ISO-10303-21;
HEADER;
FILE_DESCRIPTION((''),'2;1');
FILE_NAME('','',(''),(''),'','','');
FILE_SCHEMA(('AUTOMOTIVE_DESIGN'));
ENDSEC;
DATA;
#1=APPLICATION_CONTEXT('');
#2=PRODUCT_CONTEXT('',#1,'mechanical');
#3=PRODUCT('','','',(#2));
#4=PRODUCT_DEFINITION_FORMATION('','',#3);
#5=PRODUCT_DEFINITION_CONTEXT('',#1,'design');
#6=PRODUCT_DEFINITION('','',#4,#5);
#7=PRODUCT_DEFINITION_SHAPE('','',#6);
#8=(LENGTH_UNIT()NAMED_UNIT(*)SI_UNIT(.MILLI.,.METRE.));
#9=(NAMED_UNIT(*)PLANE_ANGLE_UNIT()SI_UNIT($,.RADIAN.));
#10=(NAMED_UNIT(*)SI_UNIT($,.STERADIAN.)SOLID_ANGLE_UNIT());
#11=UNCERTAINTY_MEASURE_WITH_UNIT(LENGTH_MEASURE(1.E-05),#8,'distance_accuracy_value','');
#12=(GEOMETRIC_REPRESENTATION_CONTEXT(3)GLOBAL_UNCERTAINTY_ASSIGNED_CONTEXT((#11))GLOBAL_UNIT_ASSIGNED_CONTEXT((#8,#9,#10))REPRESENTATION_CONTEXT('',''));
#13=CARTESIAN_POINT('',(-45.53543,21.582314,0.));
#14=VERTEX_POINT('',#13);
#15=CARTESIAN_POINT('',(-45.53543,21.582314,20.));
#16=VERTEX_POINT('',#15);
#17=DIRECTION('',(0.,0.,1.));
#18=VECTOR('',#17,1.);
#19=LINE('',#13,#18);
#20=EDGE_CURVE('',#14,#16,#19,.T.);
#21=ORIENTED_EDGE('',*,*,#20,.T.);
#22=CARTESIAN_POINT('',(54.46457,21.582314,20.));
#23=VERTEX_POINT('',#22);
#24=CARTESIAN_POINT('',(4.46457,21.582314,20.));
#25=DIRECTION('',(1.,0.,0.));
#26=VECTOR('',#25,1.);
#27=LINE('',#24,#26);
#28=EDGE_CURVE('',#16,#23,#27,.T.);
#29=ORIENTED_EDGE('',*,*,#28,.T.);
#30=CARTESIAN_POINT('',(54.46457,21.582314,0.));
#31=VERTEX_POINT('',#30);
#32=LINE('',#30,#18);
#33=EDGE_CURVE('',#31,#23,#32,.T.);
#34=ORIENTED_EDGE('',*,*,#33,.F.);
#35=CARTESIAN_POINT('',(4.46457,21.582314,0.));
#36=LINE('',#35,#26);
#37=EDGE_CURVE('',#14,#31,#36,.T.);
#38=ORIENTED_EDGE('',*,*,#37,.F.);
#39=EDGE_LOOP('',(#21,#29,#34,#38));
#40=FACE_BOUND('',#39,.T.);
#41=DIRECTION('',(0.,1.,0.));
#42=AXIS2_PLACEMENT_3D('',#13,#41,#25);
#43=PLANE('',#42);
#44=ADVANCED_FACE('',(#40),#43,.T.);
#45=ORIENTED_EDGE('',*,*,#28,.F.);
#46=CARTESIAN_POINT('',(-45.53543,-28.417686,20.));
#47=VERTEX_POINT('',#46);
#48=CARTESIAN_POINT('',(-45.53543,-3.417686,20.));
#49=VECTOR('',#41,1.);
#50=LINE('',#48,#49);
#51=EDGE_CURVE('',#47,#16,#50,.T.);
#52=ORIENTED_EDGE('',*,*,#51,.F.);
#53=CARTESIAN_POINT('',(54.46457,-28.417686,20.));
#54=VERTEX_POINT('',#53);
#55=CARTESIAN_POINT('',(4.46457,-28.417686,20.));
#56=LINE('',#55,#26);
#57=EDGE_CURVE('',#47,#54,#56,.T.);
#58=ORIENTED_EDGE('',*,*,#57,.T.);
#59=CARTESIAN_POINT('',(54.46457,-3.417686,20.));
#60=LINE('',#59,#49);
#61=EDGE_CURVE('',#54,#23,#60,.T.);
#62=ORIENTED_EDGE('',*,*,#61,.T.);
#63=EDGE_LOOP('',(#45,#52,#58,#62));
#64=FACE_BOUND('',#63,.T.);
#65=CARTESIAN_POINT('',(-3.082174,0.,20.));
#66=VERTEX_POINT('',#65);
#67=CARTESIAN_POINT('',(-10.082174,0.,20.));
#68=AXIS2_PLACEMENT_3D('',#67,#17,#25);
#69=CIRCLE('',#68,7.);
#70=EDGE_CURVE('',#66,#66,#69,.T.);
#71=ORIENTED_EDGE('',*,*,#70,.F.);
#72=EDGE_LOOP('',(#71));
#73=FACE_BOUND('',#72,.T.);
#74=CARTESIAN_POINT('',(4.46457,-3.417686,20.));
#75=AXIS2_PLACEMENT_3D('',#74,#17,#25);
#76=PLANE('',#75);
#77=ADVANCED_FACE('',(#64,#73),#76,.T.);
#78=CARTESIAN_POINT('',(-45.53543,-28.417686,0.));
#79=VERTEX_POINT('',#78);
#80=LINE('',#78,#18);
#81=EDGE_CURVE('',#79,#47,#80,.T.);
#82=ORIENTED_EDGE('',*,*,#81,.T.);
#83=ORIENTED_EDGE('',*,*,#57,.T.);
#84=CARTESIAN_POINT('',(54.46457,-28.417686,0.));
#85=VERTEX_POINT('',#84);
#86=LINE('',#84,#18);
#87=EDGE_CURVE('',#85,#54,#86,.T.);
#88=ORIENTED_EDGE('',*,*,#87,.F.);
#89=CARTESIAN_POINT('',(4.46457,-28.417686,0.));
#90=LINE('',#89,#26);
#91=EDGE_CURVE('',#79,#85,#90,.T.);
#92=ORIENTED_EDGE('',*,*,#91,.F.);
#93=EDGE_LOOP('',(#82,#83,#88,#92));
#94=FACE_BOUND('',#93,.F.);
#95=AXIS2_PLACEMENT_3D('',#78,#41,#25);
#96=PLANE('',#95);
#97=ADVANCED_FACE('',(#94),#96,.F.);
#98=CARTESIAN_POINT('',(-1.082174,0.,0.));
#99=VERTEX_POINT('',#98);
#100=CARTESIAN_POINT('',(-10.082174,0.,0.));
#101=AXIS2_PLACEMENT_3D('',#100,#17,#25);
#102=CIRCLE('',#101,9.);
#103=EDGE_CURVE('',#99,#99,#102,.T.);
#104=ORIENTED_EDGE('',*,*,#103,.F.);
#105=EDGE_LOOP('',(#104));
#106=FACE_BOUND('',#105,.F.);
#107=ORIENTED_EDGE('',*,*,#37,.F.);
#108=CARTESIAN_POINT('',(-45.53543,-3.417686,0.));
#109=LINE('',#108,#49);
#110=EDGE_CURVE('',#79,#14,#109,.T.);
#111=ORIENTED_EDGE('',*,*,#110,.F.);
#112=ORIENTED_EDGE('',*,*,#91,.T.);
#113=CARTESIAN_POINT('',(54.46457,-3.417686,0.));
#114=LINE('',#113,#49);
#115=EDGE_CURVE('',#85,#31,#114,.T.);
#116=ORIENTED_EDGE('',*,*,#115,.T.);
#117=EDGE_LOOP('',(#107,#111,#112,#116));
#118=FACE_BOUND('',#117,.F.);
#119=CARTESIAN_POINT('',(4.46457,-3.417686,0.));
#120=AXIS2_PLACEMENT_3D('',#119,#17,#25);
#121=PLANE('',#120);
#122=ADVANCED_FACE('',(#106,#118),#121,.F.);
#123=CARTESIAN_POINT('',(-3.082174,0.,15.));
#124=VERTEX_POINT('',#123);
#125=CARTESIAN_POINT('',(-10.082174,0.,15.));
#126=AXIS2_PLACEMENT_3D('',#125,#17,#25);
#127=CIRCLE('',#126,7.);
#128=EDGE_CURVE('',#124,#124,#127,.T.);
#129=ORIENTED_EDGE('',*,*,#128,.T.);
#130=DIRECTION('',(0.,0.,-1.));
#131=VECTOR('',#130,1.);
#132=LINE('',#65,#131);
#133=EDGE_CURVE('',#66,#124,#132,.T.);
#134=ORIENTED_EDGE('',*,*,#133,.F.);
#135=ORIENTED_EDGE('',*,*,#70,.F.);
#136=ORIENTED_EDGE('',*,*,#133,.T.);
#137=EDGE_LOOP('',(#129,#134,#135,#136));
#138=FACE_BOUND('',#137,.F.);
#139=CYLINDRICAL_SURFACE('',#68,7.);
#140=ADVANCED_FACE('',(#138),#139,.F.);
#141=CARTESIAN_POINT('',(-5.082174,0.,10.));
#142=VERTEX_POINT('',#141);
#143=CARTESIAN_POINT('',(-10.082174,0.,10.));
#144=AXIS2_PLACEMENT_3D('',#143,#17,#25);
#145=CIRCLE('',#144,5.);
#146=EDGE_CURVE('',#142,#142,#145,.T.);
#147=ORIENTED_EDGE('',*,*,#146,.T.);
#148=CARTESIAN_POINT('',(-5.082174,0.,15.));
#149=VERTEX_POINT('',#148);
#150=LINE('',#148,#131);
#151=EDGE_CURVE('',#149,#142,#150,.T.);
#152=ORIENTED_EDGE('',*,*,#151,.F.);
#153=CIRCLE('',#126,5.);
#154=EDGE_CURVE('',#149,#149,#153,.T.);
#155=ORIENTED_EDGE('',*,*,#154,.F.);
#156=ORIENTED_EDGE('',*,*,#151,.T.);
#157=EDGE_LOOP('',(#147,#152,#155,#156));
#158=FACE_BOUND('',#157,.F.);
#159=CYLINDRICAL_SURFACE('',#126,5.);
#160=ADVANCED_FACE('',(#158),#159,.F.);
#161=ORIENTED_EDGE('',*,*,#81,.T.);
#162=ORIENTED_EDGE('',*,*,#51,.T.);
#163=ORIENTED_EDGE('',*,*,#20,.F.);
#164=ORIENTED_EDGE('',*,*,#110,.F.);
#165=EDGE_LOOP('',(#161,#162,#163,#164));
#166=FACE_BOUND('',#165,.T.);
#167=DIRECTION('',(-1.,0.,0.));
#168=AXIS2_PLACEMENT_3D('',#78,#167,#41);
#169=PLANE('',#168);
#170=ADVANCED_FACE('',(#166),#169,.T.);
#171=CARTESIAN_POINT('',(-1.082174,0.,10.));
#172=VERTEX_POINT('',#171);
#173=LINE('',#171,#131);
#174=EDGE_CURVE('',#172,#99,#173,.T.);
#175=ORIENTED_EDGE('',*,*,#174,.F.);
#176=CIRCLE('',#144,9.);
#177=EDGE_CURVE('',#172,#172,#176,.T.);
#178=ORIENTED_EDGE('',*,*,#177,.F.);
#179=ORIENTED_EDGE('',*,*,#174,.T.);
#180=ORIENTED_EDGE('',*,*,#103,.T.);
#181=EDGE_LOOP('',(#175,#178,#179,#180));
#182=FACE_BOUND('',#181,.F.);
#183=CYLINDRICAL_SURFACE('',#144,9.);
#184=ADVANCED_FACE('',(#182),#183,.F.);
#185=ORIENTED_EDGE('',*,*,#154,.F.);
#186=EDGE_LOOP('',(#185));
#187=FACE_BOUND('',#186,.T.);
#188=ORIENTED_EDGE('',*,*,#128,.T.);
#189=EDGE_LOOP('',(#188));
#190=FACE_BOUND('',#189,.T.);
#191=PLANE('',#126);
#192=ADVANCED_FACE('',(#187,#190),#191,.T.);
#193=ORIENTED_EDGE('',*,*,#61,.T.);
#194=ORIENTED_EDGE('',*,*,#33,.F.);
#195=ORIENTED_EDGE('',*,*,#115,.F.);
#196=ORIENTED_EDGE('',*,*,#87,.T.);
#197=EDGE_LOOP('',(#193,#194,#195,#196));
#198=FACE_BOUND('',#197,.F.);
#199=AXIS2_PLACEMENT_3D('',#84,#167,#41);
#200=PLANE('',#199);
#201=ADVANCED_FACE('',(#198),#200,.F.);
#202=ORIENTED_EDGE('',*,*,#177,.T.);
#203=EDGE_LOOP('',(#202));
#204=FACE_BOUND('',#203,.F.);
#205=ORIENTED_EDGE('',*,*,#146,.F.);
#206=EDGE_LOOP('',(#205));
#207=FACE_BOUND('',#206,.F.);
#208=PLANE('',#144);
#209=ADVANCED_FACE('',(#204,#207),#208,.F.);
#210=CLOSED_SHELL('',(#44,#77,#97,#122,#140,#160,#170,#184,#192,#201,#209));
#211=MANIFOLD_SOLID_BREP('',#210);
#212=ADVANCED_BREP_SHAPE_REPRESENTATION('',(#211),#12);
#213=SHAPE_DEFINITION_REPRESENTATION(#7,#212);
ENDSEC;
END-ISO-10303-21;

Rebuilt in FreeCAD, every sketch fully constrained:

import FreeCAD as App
import Part
import Sketcher


def add_polygon(sketch, points):
    """Adds a closed chain of lines whose ends are joined by coincident constraints."""
    first, n = sketch.GeometryCount, len(points)
    for a, b in zip(points, points[1:] + points[:1]):
        sketch.addGeometry(Part.LineSegment(App.Vector(*a, 0), App.Vector(*b, 0)), False)
    for i in range(n):
        sketch.addConstraint(Sketcher.Constraint("Coincident", first + i, 2, first + (i + 1) % n, 1))

doc = App.newDocument("Part")
body = doc.addObject("PartDesign::Body", "Body")

sketch1 = body.newObject("Sketcher::SketchObject", "Sketch")
sketch1.AttachmentSupport = (doc.getObject("XY_Plane"), [""])
sketch1.MapMode = "FlatFace"
add_polygon(sketch1, [(-45.53543, 21.582314), (-45.53543, -28.417686), (54.46457, -28.417686), (54.46457, 21.582314)])
sketch1.addConstraint([
    Sketcher.Constraint("Vertical", 0),
    Sketcher.Constraint("Horizontal", 1),
    Sketcher.Constraint("Vertical", 2),
    Sketcher.Constraint("Horizontal", 3),
    Sketcher.Constraint("DistanceX", 1, 1, 1, 2, 100.0),
    Sketcher.Constraint("DistanceY", 0, 2, 0, 1, 50.0),
    Sketcher.Constraint("DistanceX", 0, 2, -1, 1, 45.53543),
    Sketcher.Constraint("DistanceY", 0, 2, -1, 1, 28.417686),
])
pad1 = body.newObject("PartDesign::Pad", "Pad")
pad1.Profile = sketch1
pad1.Length = 20

sketch2 = body.newObject("Sketcher::SketchObject", "Sketch001")
sketch2.AttachmentSupport = (doc.getObject("XY_Plane"), [""])
sketch2.MapMode = "FlatFace"
sketch2.AttachmentOffset = App.Placement(App.Vector(0, 0, 20), App.Rotation())
sketch2.addGeometry(Part.Circle(App.Vector(-10.082174, 0, 0), App.Vector(0, 0, 1), 7), False)
sketch2.addConstraint([
    Sketcher.Constraint("PointOnObject", 0, 3, -1),
    Sketcher.Constraint("Diameter", 0, 14.0),
    Sketcher.Constraint("DistanceX", 0, 3, -1, 1, 10.082174),
])
pocket1 = body.newObject("PartDesign::Pocket", "Pocket")
pocket1.Profile = sketch2
pocket1.Length = 5

sketch3 = body.newObject("Sketcher::SketchObject", "Sketch002")
sketch3.AttachmentSupport = (doc.getObject("XY_Plane"), [""])
sketch3.MapMode = "FlatFace"
sketch3.AttachmentOffset = App.Placement(App.Vector(0, 0, 15), App.Rotation())
sketch3.addGeometry(Part.Circle(App.Vector(-10.082174, 0, 0), App.Vector(0, 0, 1), 5), False)
sketch3.addConstraint([
    Sketcher.Constraint("PointOnObject", 0, 3, -1),
    Sketcher.Constraint("Diameter", 0, 10.0),
    Sketcher.Constraint("DistanceX", 0, 3, -1, 1, 10.082174),
])
pocket2 = body.newObject("PartDesign::Pocket", "Pocket001")
pocket2.Profile = sketch3
pocket2.Length = 5

sketch4 = body.newObject("Sketcher::SketchObject", "Sketch003")
sketch4.AttachmentSupport = (doc.getObject("XY_Plane"), [""])
sketch4.MapMode = "FlatFace"
sketch4.AttachmentOffset = App.Placement(App.Vector(0, 0, 10), App.Rotation())
sketch4.addGeometry(Part.Circle(App.Vector(-10.082174, 0, 0), App.Vector(0, 0, 1), 9), False)
sketch4.addConstraint([
    Sketcher.Constraint("PointOnObject", 0, 3, -1),
    Sketcher.Constraint("Diameter", 0, 18.0),
    Sketcher.Constraint("DistanceX", 0, 3, -1, 1, 10.082174),
])
pocket3 = body.newObject("PartDesign::Pocket", "Pocket002")
pocket3.Profile = sketch4
pocket3.Length = 25

doc.recompute()
